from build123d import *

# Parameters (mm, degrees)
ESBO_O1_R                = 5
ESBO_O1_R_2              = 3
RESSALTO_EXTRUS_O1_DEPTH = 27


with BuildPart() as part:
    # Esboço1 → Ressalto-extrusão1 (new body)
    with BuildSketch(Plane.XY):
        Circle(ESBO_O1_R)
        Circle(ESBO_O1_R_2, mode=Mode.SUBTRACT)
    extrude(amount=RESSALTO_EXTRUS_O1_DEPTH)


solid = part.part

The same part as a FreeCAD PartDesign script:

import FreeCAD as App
import Part
import Sketcher
from FreeCAD import Vector
Q = App.Units.Quantity

doc = App.newDocument("Part")
params = doc.addObject("Spreadsheet::Sheet", "Params")
for row, (alias, value) in enumerate([
    ("sketch1_diameter", "10 mm"),
    ("sketch1_diameter2", "6 mm"),
    ("pad1_length", "27 mm"),
], start=1):
    params.set(f"A{row}", alias)
    params.set(f"B{row}", "=" + value)
    params.setAlias(f"B{row}", alias)

body = doc.addObject("PartDesign::Body", "Body")

sketch1 = body.newObject("Sketcher::SketchObject", "Sketch")
sketch1.AttachmentSupport = (doc.getObject("XY_Plane"), [""])
sketch1.MapMode = "FlatFace"
sketch1.addGeometry([
    Part.Circle(Vector(0, 0, 0), Vector(0, 0, 1), 5),
    Part.Circle(Vector(0, 0, 0), Vector(0, 0, 1), 3),
], False)
sketch1.addConstraint([
    Sketcher.Constraint("Coincident", 0, 3, -1, 1),
    Sketcher.Constraint("Coincident", 1, 3, -1, 1),
    Sketcher.Constraint("Diameter", 0, Q("10 mm")),
    Sketcher.Constraint("Diameter", 1, Q("6 mm")),
])
sketch1.setExpression("Constraints[2]", "Params.sketch1_diameter")
sketch1.setExpression("Constraints[3]", "Params.sketch1_diameter2")
pad1 = body.newObject("PartDesign::Pad", "Pad")
pad1.Profile = sketch1
pad1.setExpression("Length", "Params.pad1_length")

doc.recompute()
